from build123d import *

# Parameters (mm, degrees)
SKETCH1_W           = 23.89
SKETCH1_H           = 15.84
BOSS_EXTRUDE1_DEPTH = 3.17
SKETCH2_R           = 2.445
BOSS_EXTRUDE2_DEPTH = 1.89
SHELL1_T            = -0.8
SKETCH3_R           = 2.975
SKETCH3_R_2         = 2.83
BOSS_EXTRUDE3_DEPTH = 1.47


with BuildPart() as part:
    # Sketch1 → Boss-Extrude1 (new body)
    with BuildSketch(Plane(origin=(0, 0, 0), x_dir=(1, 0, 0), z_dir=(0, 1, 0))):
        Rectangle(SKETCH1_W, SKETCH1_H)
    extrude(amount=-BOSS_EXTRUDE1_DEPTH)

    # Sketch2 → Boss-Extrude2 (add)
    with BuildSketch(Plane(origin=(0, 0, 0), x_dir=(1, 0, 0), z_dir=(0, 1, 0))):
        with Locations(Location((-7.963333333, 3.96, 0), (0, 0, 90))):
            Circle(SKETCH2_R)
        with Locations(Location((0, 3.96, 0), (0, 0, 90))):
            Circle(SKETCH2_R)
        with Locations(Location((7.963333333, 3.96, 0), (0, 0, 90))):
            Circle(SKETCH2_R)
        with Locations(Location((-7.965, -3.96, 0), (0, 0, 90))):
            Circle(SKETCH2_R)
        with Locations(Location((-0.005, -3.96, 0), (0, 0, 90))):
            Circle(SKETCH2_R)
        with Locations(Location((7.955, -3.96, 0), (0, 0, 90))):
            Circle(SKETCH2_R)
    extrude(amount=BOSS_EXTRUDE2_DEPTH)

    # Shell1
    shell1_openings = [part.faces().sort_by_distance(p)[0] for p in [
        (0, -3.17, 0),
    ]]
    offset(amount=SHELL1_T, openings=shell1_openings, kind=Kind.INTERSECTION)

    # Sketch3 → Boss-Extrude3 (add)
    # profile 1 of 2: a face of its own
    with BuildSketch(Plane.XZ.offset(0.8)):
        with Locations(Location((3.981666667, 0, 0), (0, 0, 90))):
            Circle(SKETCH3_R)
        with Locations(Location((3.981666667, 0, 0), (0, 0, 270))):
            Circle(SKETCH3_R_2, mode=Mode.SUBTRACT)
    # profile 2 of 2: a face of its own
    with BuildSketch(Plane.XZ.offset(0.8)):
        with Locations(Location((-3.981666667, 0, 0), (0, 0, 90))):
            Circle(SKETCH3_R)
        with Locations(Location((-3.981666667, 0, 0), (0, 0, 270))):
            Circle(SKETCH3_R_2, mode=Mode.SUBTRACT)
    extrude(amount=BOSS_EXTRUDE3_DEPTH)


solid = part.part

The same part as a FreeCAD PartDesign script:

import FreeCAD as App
import Part
import Sketcher
from FreeCAD import Vector
Q = App.Units.Quantity


def faces_at(feature, points):
    """Names of the faces that lie closest to the given points."""
    faces = feature.Shape.Faces
    near = lambda p: min(range(len(faces)), key=lambda i: faces[i].distToShape(Part.Vertex(*p))[0])
    return sorted({f"Face{near(p) + 1}" for p in points})

doc = App.newDocument("Part")
body = doc.addObject("PartDesign::Body", "Body")

sketch1 = body.newObject("Sketcher::SketchObject", "Sketch")
sketch1.AttachmentSupport = (doc.getObject("XZ_Plane"), [""])
sketch1.MapMode = "FlatFace"
sketch1.addGeometry(Part.LineSegment(Vector(-11.945, -7.92, 0), Vector(-11.945, 7.92, 0)), False)
sketch1.addGeometry(Part.LineSegment(Vector(-11.945, 7.92, 0), Vector(11.945, 7.92, 0)), False)
sketch1.addGeometry(Part.LineSegment(Vector(11.945, 7.92, 0), Vector(11.945, -7.92, 0)), False)
sketch1.addGeometry(Part.LineSegment(Vector(11.945, -7.92, 0), Vector(-11.945, -7.92, 0)), False)
sketch1.addConstraint(Sketcher.Constraint("Coincident", 0, 2, 1, 1))
sketch1.addConstraint(Sketcher.Constraint("Coincident", 1, 2, 2, 1))
sketch1.addConstraint(Sketcher.Constraint("Coincident", 2, 2, 3, 1))
sketch1.addConstraint(Sketcher.Constraint("Coincident", 3, 2, 0, 1))
sketch1.addConstraint(Sketcher.Constraint("Vertical", 0))
sketch1.addConstraint(Sketcher.Constraint("Horizontal", 1))
sketch1.addConstraint(Sketcher.Constraint("Vertical", 2))
sketch1.addConstraint(Sketcher.Constraint("Horizontal", 3))
sketch1.addConstraint(Sketcher.Constraint("Symmetric", 0, 2, 2, 2, -1, 1))
sketch1.addConstraint(Sketcher.Constraint("DistanceX", 1, 1, 1, 2, Q("23.89 mm")))
sketch1.addConstraint(Sketcher.Constraint("DistanceY", 0, 1, 0, 2, Q("15.84 mm")))
pad1 = body.newObject("PartDesign::Pad", "Pad")
pad1.Profile = sketch1
pad1.Length = 3.17

sketch2 = body.newObject("Sketcher::SketchObject", "Sketch001")
sketch2.AttachmentSupport = (doc.getObject("XZ_Plane"), [""])
sketch2.MapMode = "FlatFace"
sketch2.addGeometry(Part.Circle(Vector(-7.963333, -3.96, 0), Vector(0, 0, 1), 2.445), False)
sketch2.addGeometry(Part.Circle(Vector(0, -3.96, 0), Vector(0, 0, 1), 2.445), False)
sketch2.addGeometry(Part.Circle(Vector(7.963333, -3.96, 0), Vector(0, 0, 1), 2.445), False)
sketch2.addGeometry(Part.Circle(Vector(-7.965, 3.96, 0), Vector(0, 0, 1), 2.445), False)
sketch2.addGeometry(Part.Circle(Vector(-0.005, 3.96, 0), Vector(0, 0, 1), 2.445), False)
sketch2.addGeometry(Part.Circle(Vector(7.955, 3.96, 0), Vector(0, 0, 1), 2.445), False)
sketch2.addConstraint(Sketcher.Constraint("Equal", 0, 1))
sketch2.addConstraint(Sketcher.Constraint("Equal", 1, 2))
sketch2.addConstraint(Sketcher.Constraint("Equal", 2, 3))
sketch2.addConstraint(Sketcher.Constraint("Equal", 3, 4))
sketch2.addConstraint(Sketcher.Constraint("Equal", 4, 5))
sketch2.addConstraint(Sketcher.Constraint("Symmetric", 0, 3, 2, 3, -2))
sketch2.addConstraint(Sketcher.Constraint("PointOnObject", 1, 3, -2))
sketch2.addConstraint(Sketcher.Constraint("Horizontal", 0, 3, 1, 3))
sketch2.addConstraint(Sketcher.Constraint("Horizontal", 3, 3, 4, 3))
sketch2.addConstraint(Sketcher.Constraint("Horizontal", 4, 3, 5, 3))
sketch2.addConstraint(Sketcher.Constraint("Diameter", 0, Q("4.89 mm")))
sketch2.addConstraint(Sketcher.Constraint("DistanceY", 0, 3, -1, 1, Q("3.96 mm")))
sketch2.addConstraint(Sketcher.Constraint("DistanceY", -1, 1, 3, 3, Q("3.96 mm")))
sketch2.addConstraint(Sketcher.Constraint("DistanceX", 3, 3, 4, 3, Q("7.96 mm")))
sketch2.addConstraint(Sketcher.Constraint("DistanceX", 4, 3, 5, 3, Q("7.96 mm")))
sketch2.addConstraint(Sketcher.Constraint("DistanceX", 3, 3, -1, 1, Q("7.965 mm")))
sketch2.addConstraint(Sketcher.Constraint("DistanceX", 0, 3, -1, 1, Q("7.963333 mm")))
pad2 = body.newObject("PartDesign::Pad", "Pad001")
pad2.Profile = sketch2
pad2.Length = 1.89
pad2.Reversed = True
doc.recompute()

thickness = body.newObject("PartDesign::Thickness", "Thickness")
thickness.Base = (pad2, faces_at(pad2, [(0, -3.17, 0)]))
thickness.Value = 0.8
thickness.Reversed = True
thickness.Join = "Intersection"

sketch3 = body.newObject("Sketcher::SketchObject", "Sketch002")
sketch3.AttachmentSupport = (doc.getObject("XZ_Plane"), [""])
sketch3.MapMode = "FlatFace"
sketch3.AttachmentOffset = App.Placement(Vector(0, 0, 0.8), App.Rotation())
sketch3.addGeometry(Part.Circle(Vector(3.981667, 0, 0), Vector(0, 0, 1), 2.975), False)
sketch3.addGeometry(Part.Circle(Vector(3.981667, 0, 0), Vector(0, 0, 1), 2.83), False)
sketch3.addGeometry(Part.Circle(Vector(-3.981667, 0, 0), Vector(0, 0, 1), 2.975), False)
sketch3.addGeometry(Part.Circle(Vector(-3.981667, 0, 0), Vector(0, 0, 1), 2.83), False)
sketch3.addConstraint(Sketcher.Constraint("Coincident", 1, 3, 0, 3))
sketch3.addConstraint(Sketcher.Constraint("Coincident", 3, 3, 2, 3))
sketch3.addConstraint(Sketcher.Constraint("Equal", 0, 2))
sketch3.addConstraint(Sketcher.Constraint("Equal", 1, 3))
sketch3.addConstraint(Sketcher.Constraint("Symmetric", 0, 3, 2, 3, -1, 1))
sketch3.addConstraint(Sketcher.Constraint("PointOnObject", 0, 3, -1))
sketch3.addConstraint(Sketcher.Constraint("Diameter", 0, Q("5.95 mm")))
sketch3.addConstraint(Sketcher.Constraint("Diameter", 1, Q("5.66 mm")))
sketch3.addConstraint(Sketcher.Constraint("DistanceX", -1, 1, 0, 3, Q("3.981667 mm")))
pad3 = body.newObject("PartDesign::Pad", "Pad002")
pad3.Profile = sketch3
pad3.Length = 1.47

doc.recompute()
